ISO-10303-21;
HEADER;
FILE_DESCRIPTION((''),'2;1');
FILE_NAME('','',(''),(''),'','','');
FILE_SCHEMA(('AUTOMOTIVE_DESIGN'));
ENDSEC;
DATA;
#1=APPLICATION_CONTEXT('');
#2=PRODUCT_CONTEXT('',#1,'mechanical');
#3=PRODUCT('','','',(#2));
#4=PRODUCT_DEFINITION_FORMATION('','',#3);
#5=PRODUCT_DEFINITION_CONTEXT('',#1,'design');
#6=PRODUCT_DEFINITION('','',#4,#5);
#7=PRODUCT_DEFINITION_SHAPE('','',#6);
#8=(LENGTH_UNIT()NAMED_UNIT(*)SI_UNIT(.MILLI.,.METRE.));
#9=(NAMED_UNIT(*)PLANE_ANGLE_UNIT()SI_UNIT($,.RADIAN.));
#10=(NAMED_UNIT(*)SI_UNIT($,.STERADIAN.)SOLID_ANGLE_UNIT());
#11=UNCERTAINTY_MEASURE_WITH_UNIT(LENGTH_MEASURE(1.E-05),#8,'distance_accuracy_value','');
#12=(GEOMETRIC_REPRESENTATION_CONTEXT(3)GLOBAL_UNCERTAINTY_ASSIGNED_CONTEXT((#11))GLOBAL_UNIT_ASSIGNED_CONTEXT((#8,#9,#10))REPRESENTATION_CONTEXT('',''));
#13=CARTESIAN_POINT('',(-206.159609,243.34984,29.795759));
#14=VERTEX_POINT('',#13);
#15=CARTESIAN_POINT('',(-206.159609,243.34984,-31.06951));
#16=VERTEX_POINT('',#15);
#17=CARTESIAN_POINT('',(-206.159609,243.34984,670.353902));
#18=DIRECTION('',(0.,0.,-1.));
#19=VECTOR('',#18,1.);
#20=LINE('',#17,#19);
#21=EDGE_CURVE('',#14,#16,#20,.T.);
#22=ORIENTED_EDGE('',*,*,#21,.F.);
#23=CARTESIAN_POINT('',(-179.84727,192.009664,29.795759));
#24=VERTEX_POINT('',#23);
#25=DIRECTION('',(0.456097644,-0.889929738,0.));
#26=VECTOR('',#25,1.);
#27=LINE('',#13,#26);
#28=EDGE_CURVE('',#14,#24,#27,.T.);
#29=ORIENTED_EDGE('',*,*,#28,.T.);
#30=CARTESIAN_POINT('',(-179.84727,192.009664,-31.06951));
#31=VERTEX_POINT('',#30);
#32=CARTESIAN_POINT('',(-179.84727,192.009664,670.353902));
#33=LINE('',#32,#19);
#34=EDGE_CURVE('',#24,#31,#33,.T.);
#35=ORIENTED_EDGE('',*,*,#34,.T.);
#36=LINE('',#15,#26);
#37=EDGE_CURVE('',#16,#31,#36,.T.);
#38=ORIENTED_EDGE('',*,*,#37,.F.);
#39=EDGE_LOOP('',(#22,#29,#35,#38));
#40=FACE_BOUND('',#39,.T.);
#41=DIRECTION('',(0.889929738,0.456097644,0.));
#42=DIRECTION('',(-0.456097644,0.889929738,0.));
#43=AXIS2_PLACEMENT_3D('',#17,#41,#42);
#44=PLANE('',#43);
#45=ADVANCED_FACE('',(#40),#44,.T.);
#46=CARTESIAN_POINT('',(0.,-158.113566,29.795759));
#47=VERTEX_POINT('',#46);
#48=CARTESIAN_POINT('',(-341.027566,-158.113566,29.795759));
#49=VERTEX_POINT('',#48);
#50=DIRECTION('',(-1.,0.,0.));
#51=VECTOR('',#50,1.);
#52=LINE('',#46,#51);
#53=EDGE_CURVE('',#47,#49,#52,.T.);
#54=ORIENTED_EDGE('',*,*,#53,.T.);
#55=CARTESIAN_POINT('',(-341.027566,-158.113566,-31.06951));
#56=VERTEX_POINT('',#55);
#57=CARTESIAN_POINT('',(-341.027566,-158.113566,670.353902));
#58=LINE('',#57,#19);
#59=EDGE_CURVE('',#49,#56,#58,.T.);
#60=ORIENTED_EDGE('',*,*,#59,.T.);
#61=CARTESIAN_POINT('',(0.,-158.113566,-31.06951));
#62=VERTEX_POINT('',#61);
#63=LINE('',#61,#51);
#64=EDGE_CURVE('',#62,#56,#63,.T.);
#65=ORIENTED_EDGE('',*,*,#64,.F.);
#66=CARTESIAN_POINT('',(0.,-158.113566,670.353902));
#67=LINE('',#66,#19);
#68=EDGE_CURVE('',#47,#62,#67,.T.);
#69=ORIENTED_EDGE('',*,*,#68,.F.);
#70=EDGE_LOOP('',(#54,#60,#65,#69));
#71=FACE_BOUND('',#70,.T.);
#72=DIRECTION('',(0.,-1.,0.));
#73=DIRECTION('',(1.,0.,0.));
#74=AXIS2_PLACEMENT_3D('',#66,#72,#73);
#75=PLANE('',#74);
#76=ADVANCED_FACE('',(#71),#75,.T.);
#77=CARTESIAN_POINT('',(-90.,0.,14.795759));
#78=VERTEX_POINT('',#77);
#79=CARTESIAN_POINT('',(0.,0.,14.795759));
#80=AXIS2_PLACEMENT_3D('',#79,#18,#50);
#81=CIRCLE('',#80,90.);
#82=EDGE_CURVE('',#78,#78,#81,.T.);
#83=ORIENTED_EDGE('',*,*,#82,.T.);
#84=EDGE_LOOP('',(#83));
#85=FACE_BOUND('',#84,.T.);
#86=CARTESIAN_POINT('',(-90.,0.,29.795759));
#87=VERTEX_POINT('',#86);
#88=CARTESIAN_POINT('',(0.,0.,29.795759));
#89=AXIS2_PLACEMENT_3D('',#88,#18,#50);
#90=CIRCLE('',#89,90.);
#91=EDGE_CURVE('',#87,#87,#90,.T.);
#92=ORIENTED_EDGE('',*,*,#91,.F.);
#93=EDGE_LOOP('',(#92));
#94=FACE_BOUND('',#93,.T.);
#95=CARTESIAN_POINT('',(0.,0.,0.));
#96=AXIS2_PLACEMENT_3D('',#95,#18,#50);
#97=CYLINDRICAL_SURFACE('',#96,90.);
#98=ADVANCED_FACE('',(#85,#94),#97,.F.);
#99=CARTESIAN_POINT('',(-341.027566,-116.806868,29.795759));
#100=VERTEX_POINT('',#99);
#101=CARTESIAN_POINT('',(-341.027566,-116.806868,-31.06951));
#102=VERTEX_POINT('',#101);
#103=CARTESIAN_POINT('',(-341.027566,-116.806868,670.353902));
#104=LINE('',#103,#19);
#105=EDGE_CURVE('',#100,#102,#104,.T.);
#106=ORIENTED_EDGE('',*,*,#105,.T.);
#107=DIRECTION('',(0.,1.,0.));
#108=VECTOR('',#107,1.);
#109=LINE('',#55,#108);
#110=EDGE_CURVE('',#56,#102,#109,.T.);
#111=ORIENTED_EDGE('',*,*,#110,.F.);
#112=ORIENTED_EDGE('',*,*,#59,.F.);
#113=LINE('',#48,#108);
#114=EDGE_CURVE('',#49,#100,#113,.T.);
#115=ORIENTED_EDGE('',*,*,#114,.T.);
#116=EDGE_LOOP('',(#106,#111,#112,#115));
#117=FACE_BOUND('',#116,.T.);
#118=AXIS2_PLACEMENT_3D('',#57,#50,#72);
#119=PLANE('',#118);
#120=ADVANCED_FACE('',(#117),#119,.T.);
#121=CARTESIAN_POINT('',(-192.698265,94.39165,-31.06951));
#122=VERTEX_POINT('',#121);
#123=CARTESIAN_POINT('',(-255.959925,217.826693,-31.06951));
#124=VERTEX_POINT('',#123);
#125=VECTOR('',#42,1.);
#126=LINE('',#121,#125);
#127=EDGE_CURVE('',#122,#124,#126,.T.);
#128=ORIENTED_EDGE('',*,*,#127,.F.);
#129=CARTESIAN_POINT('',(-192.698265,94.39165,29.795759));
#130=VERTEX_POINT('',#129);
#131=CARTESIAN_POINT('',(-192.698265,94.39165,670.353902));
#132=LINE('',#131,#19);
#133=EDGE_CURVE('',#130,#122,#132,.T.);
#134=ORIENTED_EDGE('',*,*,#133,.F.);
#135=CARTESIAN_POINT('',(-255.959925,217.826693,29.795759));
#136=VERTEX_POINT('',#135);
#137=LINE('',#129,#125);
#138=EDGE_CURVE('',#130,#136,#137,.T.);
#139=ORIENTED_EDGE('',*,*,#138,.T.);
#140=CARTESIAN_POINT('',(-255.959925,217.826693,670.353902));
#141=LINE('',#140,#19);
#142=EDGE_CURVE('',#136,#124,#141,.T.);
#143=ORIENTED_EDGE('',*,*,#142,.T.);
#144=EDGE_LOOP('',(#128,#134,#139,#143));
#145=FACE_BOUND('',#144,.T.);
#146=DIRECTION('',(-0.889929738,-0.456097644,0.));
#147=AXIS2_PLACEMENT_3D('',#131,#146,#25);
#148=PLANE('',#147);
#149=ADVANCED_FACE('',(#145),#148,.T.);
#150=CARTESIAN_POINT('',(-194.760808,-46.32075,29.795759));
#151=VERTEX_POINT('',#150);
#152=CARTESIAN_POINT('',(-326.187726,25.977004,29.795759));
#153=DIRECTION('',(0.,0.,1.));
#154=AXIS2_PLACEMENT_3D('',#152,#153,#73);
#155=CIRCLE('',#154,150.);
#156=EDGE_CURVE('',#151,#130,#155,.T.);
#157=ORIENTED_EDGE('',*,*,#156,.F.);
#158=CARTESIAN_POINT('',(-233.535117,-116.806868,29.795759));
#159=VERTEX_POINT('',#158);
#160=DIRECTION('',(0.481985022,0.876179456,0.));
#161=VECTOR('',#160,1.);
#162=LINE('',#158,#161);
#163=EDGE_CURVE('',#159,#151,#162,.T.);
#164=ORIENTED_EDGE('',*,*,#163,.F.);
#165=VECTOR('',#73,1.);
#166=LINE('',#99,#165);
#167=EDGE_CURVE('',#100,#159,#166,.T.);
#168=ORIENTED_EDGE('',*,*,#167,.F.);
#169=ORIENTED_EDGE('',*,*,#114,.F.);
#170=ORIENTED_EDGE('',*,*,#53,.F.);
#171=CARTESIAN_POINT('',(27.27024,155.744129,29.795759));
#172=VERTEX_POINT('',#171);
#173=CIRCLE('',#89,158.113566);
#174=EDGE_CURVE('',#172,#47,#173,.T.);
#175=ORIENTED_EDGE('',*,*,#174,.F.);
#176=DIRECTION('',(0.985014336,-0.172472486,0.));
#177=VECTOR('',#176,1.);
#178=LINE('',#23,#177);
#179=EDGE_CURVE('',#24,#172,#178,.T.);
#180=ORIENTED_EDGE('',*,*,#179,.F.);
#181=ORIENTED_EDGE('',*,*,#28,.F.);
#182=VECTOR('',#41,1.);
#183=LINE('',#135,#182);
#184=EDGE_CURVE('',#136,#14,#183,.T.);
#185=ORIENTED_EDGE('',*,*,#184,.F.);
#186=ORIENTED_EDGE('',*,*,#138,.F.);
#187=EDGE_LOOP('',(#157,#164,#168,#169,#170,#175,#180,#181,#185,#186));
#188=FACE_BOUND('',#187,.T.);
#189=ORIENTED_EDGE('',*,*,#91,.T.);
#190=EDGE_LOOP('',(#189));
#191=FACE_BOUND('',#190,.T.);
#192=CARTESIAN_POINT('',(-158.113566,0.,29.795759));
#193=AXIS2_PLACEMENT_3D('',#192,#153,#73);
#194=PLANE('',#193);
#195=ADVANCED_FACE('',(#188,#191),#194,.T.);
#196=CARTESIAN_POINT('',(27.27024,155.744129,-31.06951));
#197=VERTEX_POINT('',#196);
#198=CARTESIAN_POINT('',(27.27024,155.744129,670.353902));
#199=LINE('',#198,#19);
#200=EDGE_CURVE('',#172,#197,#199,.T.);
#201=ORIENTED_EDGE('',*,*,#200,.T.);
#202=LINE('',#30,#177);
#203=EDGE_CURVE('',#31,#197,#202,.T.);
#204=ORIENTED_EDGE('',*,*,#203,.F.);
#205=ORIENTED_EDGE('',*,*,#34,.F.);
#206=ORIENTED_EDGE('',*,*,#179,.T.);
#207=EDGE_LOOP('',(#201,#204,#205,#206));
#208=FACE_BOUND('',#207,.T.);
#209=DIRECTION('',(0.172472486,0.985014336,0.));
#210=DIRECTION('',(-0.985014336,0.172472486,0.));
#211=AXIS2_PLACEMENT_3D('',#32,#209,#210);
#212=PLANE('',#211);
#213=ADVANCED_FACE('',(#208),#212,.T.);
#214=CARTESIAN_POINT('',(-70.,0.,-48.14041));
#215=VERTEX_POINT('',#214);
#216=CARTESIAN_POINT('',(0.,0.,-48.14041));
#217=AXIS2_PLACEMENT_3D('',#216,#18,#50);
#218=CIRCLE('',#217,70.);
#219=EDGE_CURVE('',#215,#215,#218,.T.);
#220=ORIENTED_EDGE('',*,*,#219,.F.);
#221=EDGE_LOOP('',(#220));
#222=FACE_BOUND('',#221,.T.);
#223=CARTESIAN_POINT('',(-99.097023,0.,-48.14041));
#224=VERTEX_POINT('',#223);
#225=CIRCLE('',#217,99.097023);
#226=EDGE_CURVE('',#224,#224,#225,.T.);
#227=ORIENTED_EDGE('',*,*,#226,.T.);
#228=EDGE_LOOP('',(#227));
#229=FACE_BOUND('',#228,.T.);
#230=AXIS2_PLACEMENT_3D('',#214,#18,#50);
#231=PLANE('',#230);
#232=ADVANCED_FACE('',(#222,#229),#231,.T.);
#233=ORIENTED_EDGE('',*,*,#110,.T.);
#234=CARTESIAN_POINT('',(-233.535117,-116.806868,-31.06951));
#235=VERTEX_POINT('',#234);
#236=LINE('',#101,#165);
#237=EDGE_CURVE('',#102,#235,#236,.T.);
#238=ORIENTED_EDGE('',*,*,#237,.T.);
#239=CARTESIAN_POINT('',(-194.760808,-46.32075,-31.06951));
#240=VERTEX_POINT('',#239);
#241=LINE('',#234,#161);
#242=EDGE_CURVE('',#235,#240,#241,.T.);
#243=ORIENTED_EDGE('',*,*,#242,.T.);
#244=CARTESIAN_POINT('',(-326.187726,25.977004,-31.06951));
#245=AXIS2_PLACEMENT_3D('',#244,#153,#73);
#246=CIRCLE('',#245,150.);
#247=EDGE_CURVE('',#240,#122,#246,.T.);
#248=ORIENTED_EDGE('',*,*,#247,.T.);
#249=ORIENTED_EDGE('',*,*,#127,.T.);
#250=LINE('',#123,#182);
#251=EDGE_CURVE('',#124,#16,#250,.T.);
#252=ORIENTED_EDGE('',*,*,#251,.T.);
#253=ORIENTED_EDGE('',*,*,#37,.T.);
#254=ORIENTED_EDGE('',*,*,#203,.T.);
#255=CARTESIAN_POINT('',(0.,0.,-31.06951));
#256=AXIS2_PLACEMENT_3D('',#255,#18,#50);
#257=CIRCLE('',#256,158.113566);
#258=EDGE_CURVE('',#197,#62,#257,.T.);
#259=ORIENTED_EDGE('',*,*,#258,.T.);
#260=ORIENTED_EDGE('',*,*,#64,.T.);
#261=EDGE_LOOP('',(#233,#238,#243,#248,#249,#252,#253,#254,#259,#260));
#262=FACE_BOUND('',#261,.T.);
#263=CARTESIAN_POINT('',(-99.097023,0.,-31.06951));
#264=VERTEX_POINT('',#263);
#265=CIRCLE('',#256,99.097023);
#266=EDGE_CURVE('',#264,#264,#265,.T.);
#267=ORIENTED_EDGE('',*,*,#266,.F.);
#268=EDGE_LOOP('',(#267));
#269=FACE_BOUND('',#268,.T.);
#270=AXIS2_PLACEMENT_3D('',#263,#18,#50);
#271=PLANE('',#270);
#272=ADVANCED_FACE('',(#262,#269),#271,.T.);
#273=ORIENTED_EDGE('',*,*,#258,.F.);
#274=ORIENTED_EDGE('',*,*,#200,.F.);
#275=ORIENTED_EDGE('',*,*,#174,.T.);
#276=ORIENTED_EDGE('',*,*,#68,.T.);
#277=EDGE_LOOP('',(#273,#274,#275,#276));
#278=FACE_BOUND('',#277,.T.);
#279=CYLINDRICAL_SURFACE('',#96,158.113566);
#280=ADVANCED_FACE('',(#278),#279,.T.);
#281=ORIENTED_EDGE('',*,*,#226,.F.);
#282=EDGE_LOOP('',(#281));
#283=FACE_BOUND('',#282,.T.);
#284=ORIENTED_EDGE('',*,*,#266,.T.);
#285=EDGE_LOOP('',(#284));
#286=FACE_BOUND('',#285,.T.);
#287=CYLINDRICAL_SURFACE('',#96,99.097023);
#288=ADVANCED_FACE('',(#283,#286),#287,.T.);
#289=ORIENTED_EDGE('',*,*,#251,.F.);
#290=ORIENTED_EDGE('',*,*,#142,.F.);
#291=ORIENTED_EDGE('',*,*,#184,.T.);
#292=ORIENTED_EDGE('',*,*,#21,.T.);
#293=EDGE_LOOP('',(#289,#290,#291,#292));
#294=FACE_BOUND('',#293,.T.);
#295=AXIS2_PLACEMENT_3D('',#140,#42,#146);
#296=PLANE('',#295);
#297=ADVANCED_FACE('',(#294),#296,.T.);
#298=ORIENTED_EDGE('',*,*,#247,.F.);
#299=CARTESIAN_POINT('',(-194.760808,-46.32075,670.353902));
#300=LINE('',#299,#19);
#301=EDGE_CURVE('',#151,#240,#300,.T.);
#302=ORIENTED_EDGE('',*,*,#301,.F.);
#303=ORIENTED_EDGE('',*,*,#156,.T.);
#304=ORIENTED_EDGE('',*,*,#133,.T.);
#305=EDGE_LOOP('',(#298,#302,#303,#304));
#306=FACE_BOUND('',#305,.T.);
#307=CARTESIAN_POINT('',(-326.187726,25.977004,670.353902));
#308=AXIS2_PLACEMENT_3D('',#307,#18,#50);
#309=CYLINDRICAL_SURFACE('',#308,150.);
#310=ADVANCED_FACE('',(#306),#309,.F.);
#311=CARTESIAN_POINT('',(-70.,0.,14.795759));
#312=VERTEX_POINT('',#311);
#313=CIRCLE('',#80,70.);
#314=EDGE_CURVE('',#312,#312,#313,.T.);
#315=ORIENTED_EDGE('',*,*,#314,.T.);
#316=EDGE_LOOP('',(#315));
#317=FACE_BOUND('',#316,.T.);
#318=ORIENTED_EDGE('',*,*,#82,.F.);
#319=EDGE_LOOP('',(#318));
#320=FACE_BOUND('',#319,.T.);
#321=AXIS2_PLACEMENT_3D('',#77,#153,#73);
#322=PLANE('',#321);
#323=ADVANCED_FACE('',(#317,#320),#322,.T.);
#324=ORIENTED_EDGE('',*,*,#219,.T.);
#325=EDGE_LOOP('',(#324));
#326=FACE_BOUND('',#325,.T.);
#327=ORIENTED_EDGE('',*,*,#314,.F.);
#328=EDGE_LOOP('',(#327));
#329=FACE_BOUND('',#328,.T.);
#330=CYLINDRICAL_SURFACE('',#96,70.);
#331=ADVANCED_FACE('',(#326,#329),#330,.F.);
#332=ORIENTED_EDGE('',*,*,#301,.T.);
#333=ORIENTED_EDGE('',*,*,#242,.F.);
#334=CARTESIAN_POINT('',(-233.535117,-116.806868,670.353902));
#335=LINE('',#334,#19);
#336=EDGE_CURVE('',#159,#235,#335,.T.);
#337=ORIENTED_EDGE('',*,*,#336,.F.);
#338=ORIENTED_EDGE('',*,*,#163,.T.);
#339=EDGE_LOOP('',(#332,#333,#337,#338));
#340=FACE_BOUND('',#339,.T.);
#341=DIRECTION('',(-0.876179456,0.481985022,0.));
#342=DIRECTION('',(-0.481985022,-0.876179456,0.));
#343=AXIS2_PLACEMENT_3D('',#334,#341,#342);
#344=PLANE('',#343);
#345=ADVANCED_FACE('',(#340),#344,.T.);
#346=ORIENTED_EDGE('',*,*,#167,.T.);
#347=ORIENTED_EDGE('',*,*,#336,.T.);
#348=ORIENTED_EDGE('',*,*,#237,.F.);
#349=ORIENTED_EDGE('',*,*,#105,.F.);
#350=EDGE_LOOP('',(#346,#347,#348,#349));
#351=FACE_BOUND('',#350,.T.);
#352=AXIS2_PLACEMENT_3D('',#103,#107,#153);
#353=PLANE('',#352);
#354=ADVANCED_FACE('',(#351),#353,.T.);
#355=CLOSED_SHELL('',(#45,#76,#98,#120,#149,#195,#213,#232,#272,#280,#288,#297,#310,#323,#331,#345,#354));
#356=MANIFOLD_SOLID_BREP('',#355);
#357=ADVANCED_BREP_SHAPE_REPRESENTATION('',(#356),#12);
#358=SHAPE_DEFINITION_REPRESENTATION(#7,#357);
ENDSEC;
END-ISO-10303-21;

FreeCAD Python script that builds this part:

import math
import FreeCAD as App
import Part
import Sketcher

doc = App.newDocument("Part")
body = doc.addObject("PartDesign::Body", "Body")

# Sketch on XZ plane
sketch1 = body.newObject("Sketcher::SketchObject", "Sketch")
sketch1.AttachmentSupport = (doc.getObject("XZ_Plane"), [""])
sketch1.MapMode = "FlatFace"
sketch1.addGeometry(Part.LineSegment(App.Vector(-90, 30, 0), App.Vector(-90, 15, 0)), False)
sketch1.addGeometry(Part.LineSegment(App.Vector(-90, 15, 0), App.Vector(-70, 15, 0)), False)
sketch1.addGeometry(Part.LineSegment(App.Vector(-70, 15, 0), App.Vector(-70, -48, 0)), False)
sketch1.addGeometry(Part.LineSegment(App.Vector(-70, -48, 0), App.Vector(-99, -48, 0)), False)
sketch1.addGeometry(Part.LineSegment(App.Vector(-99, -48, 0), App.Vector(-99, -31, 0)), False)
sketch1.addGeometry(Part.LineSegment(App.Vector(-99, -31, 0), App.Vector(-158, -31, 0)), False)
sketch1.addGeometry(Part.LineSegment(App.Vector(-158, -31, 0), App.Vector(-158, 30, 0)), False)
sketch1.addGeometry(Part.LineSegment(App.Vector(-158, 30, 0), App.Vector(-90, 30, 0)), False)
sketch1.addConstraint(Sketcher.Constraint("Coincident", 0, 2, 1, 1))
sketch1.addConstraint(Sketcher.Constraint("Coincident", 1, 2, 2, 1))
sketch1.addConstraint(Sketcher.Constraint("Coincident", 2, 2, 3, 1))
sketch1.addConstraint(Sketcher.Constraint("Coincident", 3, 2, 4, 1))
sketch1.addConstraint(Sketcher.Constraint("Coincident", 4, 2, 5, 1))
sketch1.addConstraint(Sketcher.Constraint("Coincident", 5, 2, 6, 1))
sketch1.addConstraint(Sketcher.Constraint("Coincident", 6, 2, 7, 1))
sketch1.addConstraint(Sketcher.Constraint("Coincident", 7, 2, 0, 1))
sketch1.addConstraint(Sketcher.Constraint("Vertical", 0))
sketch1.addConstraint(Sketcher.Constraint("Horizontal", 1))
sketch1.addConstraint(Sketcher.Constraint("Vertical", 2))
sketch1.addConstraint(Sketcher.Constraint("Horizontal", 3))
sketch1.addConstraint(Sketcher.Constraint("Vertical", 4))
sketch1.addConstraint(Sketcher.Constraint("Horizontal", 5))
sketch1.addConstraint(Sketcher.Constraint("Vertical", 6))
sketch1.addConstraint(Sketcher.Constraint("Horizontal", 7))
sketch1.addConstraint(Sketcher.Constraint("DistanceX", 1, 1, 1, 2, 20.0))
sketch1.addConstraint(Sketcher.Constraint("DistanceY", 0, 2, 0, 1, 15.0))
sketch1.addConstraint(Sketcher.Constraint("DistanceX", 0, 2, -1, 1, 90.0))
sketch1.addConstraint(Sketcher.Constraint("DistanceY", 4, 1, 4, 2, 17.070901))
sketch1.addConstraint(Sketcher.Constraint("DistanceY", 2, 2, 2, 1, 62.936169))
sketch1.addConstraint(Sketcher.Constraint("DistanceX", 3, 2, 3, 1, 29.097023))
sketch1.addConstraint(Sketcher.Constraint("DistanceX", 5, 2, 5, 1, 59.016542))
sketch1.addConstraint(Sketcher.Constraint("DistanceY", -1, 1, 0, 2, 14.795759))
revolution = body.newObject("PartDesign::Revolution", "Revolution")
revolution.Profile = sketch1
revolution.ReferenceAxis = (sketch1, ["V_Axis"])
revolution.Angle = 360

# Sketch on XY plane
sketch2 = body.newObject("Sketcher::SketchObject", "Sketch001")
sketch2.AttachmentSupport = (doc.getObject("XY_Plane"), [""])
sketch2.MapMode = "FlatFace"
sketch2.AttachmentOffset = App.Placement(App.Vector(0, 0, -31.06951), App.Rotation())
sketch2.addGeometry(Part.LineSegment(App.Vector(0, -158, 0), App.Vector(-341, -158, 0)), False)
sketch2.addGeometry(Part.LineSegment(App.Vector(-341, -158, 0), App.Vector(-341, -117, 0)), False)
sketch2.addGeometry(Part.LineSegment(App.Vector(-341, -117, 0), App.Vector(-234, -117, 0)), False)
sketch2.addGeometry(Part.LineSegment(App.Vector(-234, -117, 0), App.Vector(-195, -46, 0)), False)
sketch2.addGeometry(Part.ArcOfCircle(Part.Circle(App.Vector(-326, 26, 0), App.Vector(0, 0, 1), 150), math.radians(-29), math.radians(27)), False)
sketch2.addGeometry(Part.LineSegment(App.Vector(-193, 94, 0), App.Vector(-256, 218, 0)), False)
sketch2.addGeometry(Part.LineSegment(App.Vector(-256, 218, 0), App.Vector(-206, 243, 0)), False)
sketch2.addGeometry(Part.LineSegment(App.Vector(-206, 243, 0), App.Vector(-180, 192, 0)), False)
sketch2.addGeometry(Part.LineSegment(App.Vector(-180, 192, 0), App.Vector(27, 156, 0)), False)
sketch2.addGeometry(Part.ArcOfCircle(Part.Circle(App.Vector(0, 0, 0), App.Vector(0, 0, 1), 158), math.radians(-90), math.radians(80)), False)
sketch2.addGeometry(Part.Circle(App.Vector(0, 0, 0), App.Vector(0, 0, 1), 90), False)
sketch2.addConstraint(Sketcher.Constraint("Coincident", 0, 2, 1, 1))
sketch2.addConstraint(Sketcher.Constraint("Coincident", 1, 2, 2, 1))
sketch2.addConstraint(Sketcher.Constraint("Coincident", 2, 2, 3, 1))
sketch2.addConstraint(Sketcher.Constraint("Tangent", 3, 2, 4, 1))
sketch2.addConstraint(Sketcher.Constraint("Tangent", 4, 2, 5, 1))
sketch2.addConstraint(Sketcher.Constraint("Coincident", 5, 2, 6, 1))
sketch2.addConstraint(Sketcher.Constraint("Coincident", 6, 2, 7, 1))
sketch2.addConstraint(Sketcher.Constraint("Coincident", 7, 2, 8, 1))
sketch2.addConstraint(Sketcher.Constraint("Tangent", 8, 2, 9, 2))
sketch2.addConstraint(Sketcher.Constraint("Tangent", 9, 1, 0, 1))
sketch2.addConstraint(Sketcher.Constraint("Horizontal", 0))
sketch2.addConstraint(Sketcher.Constraint("Vertical", 1))
sketch2.addConstraint(Sketcher.Constraint("Horizontal", 2))
sketch2.addConstraint(Sketcher.Constraint("Coincident", 9, 3, -1, 1))
sketch2.addConstraint(Sketcher.Constraint("Coincident", 10, 3, -1, 1))
sketch2.addConstraint(Sketcher.Constraint("Perpendicular", 5, 6))
sketch2.addConstraint(Sketcher.Constraint("Perpendicular", 6, 7))
sketch2.addConstraint(Sketcher.Constraint("Diameter", 10, 180.0))
sketch2.addConstraint(Sketcher.Constraint("Radius", 4, 150.0))
sketch2.addConstraint(Sketcher.Constraint("Radius", 9, 158.113566))
sketch2.addConstraint(Sketcher.Constraint("DistanceX", 2, 1, 2, 2, 107.492449))
sketch2.addConstraint(Sketcher.Constraint("DistanceY", 3, 2, 4, 2, 140.7124))
sketch2.addConstraint(Sketcher.Constraint("DistanceX", 4, 3, 5, 2, 70.227801))
sketch2.addConstraint(Sketcher.Constraint("DistanceX", 6, 2, 3, 2, 11.398801))
sketch2.addConstraint(Sketcher.Constraint("Distance", 5, 138.702009))
sketch2.addConstraint(Sketcher.Constraint("DistanceX", 0, 2, 0, 1, 341.027566))
sketch2.addConstraint(Sketcher.Constraint("DistanceY", 1, 1, 1, 2, 41.306697))
sketch2.addConstraint(Sketcher.Constraint("DistanceY", 3, 2, -1, 1, 46.32075))
sketch2.addConstraint(Sketcher.Constraint("DistanceX", 7, 2, -1, 1, 179.84727))
pad1 = body.newObject("PartDesign::Pad", "Pad")
pad1.Profile = sketch2
pad1.Length = 60.865268

doc.recompute()
